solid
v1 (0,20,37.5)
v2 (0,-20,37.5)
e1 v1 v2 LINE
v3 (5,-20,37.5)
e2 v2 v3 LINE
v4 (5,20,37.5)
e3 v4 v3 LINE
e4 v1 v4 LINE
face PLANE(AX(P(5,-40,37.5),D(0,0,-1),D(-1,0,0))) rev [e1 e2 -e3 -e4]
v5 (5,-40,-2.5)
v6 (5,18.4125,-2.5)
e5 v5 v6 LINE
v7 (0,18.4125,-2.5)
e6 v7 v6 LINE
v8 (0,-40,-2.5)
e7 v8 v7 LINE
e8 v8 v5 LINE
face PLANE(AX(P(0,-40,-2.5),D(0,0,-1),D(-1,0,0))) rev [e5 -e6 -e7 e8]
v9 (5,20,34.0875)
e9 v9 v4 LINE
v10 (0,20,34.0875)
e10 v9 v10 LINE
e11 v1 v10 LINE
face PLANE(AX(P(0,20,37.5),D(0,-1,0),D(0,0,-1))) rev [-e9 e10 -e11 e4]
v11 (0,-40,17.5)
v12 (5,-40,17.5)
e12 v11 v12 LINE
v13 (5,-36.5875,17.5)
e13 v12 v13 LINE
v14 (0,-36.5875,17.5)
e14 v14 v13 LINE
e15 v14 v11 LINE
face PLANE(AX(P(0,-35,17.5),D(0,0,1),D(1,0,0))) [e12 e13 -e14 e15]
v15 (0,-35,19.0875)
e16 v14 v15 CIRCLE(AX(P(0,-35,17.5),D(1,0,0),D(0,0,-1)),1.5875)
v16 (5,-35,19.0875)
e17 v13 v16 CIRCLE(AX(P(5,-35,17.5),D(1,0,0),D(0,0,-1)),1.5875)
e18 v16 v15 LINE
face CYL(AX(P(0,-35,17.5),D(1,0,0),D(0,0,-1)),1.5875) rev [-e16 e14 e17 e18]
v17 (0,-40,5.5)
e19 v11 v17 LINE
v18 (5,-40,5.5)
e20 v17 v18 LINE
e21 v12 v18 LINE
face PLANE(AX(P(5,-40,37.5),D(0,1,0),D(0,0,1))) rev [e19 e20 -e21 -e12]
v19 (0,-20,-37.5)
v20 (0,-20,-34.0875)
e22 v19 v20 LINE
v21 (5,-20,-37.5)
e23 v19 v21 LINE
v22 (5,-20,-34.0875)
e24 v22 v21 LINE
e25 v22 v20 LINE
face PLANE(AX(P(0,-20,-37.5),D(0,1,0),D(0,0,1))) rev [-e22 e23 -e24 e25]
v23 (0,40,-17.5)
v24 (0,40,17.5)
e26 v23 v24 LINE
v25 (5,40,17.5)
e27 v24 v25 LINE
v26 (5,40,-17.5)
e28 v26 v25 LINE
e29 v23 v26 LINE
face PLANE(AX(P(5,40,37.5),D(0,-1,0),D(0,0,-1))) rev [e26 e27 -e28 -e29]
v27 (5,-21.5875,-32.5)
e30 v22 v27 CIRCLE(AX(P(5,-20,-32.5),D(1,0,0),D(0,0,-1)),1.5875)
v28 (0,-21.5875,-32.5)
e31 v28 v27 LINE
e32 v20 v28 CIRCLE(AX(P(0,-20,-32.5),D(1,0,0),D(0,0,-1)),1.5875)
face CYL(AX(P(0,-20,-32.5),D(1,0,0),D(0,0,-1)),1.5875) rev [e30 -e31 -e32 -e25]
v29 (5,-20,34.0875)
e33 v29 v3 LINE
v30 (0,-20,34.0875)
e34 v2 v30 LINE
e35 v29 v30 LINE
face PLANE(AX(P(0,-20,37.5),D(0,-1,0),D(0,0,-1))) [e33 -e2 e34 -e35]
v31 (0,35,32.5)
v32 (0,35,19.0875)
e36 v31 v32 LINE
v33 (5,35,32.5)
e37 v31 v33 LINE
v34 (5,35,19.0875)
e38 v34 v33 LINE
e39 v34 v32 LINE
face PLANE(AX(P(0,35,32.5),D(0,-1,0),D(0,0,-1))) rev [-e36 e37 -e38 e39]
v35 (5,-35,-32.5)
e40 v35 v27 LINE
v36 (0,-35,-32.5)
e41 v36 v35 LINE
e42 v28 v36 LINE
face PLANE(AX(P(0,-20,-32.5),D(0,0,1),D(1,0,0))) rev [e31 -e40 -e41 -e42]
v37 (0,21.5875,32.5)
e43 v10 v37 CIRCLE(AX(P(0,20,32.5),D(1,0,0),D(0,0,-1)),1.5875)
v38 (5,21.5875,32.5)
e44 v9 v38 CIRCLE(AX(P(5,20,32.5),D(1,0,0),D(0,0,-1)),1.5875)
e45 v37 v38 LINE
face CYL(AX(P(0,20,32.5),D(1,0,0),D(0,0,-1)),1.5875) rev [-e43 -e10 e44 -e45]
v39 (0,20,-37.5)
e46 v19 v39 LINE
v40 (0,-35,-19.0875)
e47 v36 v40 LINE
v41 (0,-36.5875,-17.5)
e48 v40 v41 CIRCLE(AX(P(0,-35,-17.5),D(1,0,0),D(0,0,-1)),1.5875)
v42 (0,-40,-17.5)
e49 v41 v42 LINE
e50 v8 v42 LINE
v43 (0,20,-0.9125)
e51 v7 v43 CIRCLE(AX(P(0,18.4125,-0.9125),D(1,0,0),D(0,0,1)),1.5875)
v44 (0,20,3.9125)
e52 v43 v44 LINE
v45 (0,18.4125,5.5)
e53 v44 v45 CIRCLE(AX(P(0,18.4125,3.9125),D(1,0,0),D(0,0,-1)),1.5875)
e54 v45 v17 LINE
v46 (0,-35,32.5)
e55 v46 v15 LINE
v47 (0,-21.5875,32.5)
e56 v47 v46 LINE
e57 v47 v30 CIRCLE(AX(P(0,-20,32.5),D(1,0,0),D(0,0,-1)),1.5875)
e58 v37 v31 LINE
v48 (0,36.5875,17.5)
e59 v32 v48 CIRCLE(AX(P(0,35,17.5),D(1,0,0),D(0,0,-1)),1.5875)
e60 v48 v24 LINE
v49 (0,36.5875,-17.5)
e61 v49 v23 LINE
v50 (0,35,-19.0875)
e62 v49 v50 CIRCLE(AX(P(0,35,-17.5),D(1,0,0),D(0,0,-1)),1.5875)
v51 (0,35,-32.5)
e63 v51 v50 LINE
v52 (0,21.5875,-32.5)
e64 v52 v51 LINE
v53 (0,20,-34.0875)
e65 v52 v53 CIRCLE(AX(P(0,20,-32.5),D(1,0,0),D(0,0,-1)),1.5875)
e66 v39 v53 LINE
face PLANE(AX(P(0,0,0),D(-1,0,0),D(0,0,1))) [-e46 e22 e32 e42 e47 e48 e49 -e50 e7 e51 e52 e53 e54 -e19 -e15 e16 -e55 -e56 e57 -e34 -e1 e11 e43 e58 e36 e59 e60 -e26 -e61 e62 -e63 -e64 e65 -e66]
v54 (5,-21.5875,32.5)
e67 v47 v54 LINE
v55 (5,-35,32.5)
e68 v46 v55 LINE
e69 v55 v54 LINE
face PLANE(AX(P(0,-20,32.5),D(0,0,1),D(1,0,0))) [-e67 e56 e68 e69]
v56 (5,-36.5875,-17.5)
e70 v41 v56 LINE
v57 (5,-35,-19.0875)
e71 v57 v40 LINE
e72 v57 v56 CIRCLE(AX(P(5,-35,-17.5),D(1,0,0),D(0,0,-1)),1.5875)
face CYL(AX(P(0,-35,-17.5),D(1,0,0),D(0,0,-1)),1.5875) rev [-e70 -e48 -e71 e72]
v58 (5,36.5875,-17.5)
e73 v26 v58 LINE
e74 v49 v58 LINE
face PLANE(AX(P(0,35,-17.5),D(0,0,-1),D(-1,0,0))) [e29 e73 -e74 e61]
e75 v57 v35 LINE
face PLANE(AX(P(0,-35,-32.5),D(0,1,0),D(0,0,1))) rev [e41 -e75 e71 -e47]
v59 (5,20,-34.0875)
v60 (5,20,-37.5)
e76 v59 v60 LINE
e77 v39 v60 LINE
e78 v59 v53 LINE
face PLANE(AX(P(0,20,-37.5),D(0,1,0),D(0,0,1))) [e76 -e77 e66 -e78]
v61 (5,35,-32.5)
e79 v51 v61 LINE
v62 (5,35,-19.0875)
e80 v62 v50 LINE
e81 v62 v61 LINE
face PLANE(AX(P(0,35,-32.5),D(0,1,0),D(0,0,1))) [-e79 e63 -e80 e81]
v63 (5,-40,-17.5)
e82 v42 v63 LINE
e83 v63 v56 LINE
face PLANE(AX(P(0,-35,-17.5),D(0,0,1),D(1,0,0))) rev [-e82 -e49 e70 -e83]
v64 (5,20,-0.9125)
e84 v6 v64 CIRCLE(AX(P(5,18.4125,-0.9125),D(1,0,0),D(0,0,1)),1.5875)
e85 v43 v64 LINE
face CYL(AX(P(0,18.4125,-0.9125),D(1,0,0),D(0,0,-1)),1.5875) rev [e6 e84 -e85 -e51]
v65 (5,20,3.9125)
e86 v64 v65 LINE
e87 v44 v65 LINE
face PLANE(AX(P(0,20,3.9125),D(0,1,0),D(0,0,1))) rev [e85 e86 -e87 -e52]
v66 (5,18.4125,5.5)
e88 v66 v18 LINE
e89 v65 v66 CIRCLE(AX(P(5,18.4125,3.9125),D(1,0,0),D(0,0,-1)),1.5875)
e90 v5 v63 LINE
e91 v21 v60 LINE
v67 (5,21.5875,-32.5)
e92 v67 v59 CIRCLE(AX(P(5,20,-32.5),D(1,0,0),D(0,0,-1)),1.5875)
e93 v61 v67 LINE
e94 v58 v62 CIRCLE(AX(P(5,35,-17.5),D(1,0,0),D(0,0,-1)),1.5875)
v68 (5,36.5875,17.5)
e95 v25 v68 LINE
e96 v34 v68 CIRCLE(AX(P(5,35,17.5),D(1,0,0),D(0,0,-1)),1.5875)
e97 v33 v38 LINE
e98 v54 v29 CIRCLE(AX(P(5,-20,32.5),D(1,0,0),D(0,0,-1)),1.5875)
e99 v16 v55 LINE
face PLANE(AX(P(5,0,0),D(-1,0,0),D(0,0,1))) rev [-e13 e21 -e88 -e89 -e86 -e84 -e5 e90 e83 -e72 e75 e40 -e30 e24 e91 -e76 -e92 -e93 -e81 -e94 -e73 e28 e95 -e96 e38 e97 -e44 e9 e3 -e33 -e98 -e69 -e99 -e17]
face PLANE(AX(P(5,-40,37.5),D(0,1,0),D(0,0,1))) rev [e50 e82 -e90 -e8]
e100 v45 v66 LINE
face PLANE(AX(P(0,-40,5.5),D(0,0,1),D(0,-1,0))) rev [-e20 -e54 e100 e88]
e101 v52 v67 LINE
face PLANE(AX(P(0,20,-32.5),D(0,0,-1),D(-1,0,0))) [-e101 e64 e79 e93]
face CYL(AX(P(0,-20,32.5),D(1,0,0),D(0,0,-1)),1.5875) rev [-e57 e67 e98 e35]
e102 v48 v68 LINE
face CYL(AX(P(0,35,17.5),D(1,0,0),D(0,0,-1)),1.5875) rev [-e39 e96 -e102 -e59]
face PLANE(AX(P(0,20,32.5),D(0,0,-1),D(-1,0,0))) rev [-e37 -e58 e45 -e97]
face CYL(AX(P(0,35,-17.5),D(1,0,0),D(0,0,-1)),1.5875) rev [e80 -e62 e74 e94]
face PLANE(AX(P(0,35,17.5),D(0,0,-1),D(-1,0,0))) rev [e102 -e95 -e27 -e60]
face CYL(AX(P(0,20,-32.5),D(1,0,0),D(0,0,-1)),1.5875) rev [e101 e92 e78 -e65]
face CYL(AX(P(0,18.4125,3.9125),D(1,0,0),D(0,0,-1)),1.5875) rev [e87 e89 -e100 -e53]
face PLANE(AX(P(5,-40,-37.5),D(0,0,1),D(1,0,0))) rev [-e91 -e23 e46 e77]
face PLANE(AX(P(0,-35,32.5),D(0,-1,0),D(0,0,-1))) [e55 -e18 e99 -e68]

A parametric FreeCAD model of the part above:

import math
import FreeCAD as App
import Part
import Sketcher

V = App.Vector


def add_polygon(sketch, points):
    """Adds a closed chain of lines whose ends are joined by coincident constraints."""
    first, n = sketch.GeometryCount, len(points)
    for a, b in zip(points, points[1:] + points[:1]):
        sketch.addGeometry(Part.LineSegment(App.Vector(*a, 0), App.Vector(*b, 0)), False)
    for i in range(n):
        sketch.addConstraint(Sketcher.Constraint("Coincident", first + i, 2, first + (i + 1) % n, 1))

doc = App.newDocument("Part")
body = doc.addObject("PartDesign::Body", "Body")

sketch1 = body.newObject("Sketcher::SketchObject", "Sketch")
sketch1.AttachmentSupport = (doc.getObject("YZ_Plane"), [""])
sketch1.MapMode = "FlatFace"
add_polygon(sketch1, [(40, 38), (-40, 38), (-40, -38), (40, -38)])
sketch1.addConstraint([
    Sketcher.Constraint("Horizontal", 0),
    Sketcher.Constraint("Vertical", 1),
    Sketcher.Constraint("Horizontal", 2),
    Sketcher.Constraint("Vertical", 3),
    Sketcher.Constraint("Symmetric", 0, 2, 2, 2, -1, 1),
    Sketcher.Constraint("DistanceX", 0, 2, 0, 1, 80.0),
    Sketcher.Constraint("DistanceY", 1, 2, 1, 1, 75.0),
])
pad1 = body.newObject("PartDesign::Pad", "Pad")
pad1.Profile = sketch1
pad1.Length = 5

sketch2 = body.newObject("Sketcher::SketchObject", "Sketch001")
sketch2.AttachmentSupport = (doc.getObject("YZ_Plane"), [""])
sketch2.MapMode = "FlatFace"
sketch2.AttachmentOffset = App.Placement(V(0, 0, -1), App.Rotation())
add_polygon(sketch2, [(20, 38), (20, 32), (35, 32), (35, 18), (40, 18), (40, 38)])
sketch2.addConstraint([
    Sketcher.Constraint("Vertical", 0),
    Sketcher.Constraint("Horizontal", 1),
    Sketcher.Constraint("Vertical", 2),
    Sketcher.Constraint("Horizontal", 3),
    Sketcher.Constraint("Vertical", 4),
    Sketcher.Constraint("Horizontal", 5),
    Sketcher.Constraint("Equal", 3, 0),
    Sketcher.Constraint("Equal", 1, 2),
    Sketcher.Constraint("DistanceX", 1, 1, 1, 2, 15.0),
    Sketcher.Constraint("DistanceX", 3, 1, 3, 2, 5.0),
    Sketcher.Constraint("DistanceX", -1, 1, 0, 2, 20.0),
    Sketcher.Constraint("DistanceY", -1, 1, 0, 2, 32.5),
])
pocket1 = body.newObject("PartDesign::Pocket", "Pocket")
pocket1.Profile = sketch2
pocket1.Length = 7
pocket1.Reversed = True
doc.recompute()

mirrored = body.newObject("PartDesign::Mirrored", "Mirrored")
mirrored.Originals = [pocket1]
mirrored.MirrorPlane = (doc.getObject("XY_Plane"), [""])
body.Tip = mirrored
doc.recompute()

mirrored2 = body.newObject("PartDesign::Mirrored", "Mirrored001")
mirrored2.Originals = [pocket1]
mirrored2.MirrorPlane = (doc.getObject("XZ_Plane"), [""])
body.Tip = mirrored2

sketch3 = body.newObject("Sketcher::SketchObject", "Sketch002")
sketch3.AttachmentSupport = (doc.getObject("YZ_Plane"), [""])
sketch3.MapMode = "FlatFace"
sketch3.AttachmentOffset = App.Placement(V(0, 0, -1), App.Rotation())
add_polygon(sketch3, [(-20, -38), (-20, -32), (-35, -32), (-35, -18), (-40, -18), (-40, -38)])
sketch3.addConstraint([
    Sketcher.Constraint("Vertical", 0),
    Sketcher.Constraint("Horizontal", 1),
    Sketcher.Constraint("Vertical", 2),
    Sketcher.Constraint("Horizontal", 3),
    Sketcher.Constraint("Vertical", 4),
    Sketcher.Constraint("Horizontal", 5),
    Sketcher.Constraint("Equal", 3, 0),
    Sketcher.Constraint("Equal", 1, 2),
    Sketcher.Constraint("DistanceX", 1, 2, 1, 1, 15.0),
    Sketcher.Constraint("DistanceX", 3, 2, 3, 1, 5.0),
    Sketcher.Constraint("DistanceX", 0, 2, -1, 1, 20.0),
    Sketcher.Constraint("DistanceY", 0, 2, -1, 1, 32.5),
])
pocket2 = body.newObject("PartDesign::Pocket", "Pocket001")
pocket2.Profile = sketch3
pocket2.Length = 7
pocket2.Reversed = True

sketch4 = body.newObject("Sketcher::SketchObject", "Sketch003")
sketch4.AttachmentSupport = (doc.getObject("YZ_Plane"), [""])
sketch4.MapMode = "FlatFace"
sketch4.AttachmentOffset = App.Placement(V(0, 0, 5), App.Rotation())
sketch4.addGeometry([
    Part.LineSegment(V(18.4, 5.5, 0), V(-40, 5.5, 0)),
    Part.LineSegment(V(-40, 5.5, 0), V(-40, -2.5, 0)),
    Part.LineSegment(V(-40, -2.5, 0), V(18.4, -2.5, 0)),
    Part.ArcOfCircle(Part.Circle(V(18.4, -0.9, 0), V(0, 0, 1), 1.6), math.radians(-90), math.radians(0)),
    Part.LineSegment(V(20, -0.9, 0), V(20, 3.9, 0)),
    Part.ArcOfCircle(Part.Circle(V(18.4, 3.9, 0), V(0, 0, 1), 1.6), math.radians(0), math.radians(90)),
], False)
sketch4.addConstraint([
    Sketcher.Constraint("Coincident", 0, 2, 1, 1),
    Sketcher.Constraint("Coincident", 1, 2, 2, 1),
    Sketcher.Constraint("Tangent", 2, 2, 3, 1),
    Sketcher.Constraint("Tangent", 3, 2, 4, 1),
    Sketcher.Constraint("Tangent", 4, 2, 5, 1),
    Sketcher.Constraint("Tangent", 5, 2, 0, 1),
    Sketcher.Constraint("Horizontal", 0),
    Sketcher.Constraint("Vertical", 1),
    Sketcher.Constraint("Horizontal", 2),
    Sketcher.Constraint("Vertical", 4),
    Sketcher.Constraint("Equal", 3, 5),
    Sketcher.Constraint("DistanceY", 1, 2, 1, 1, 8.0),
    Sketcher.Constraint("DistanceX", 0, 2, -1, 1, 40.0),
    Sketcher.Constraint("DistanceX", -1, 1, 3, 2, 20.0),
    Sketcher.Constraint("DistanceY", -1, 1, 0, 2, 5.5),
    Sketcher.Constraint("Radius", 3, 1.5875),
])
pocket3 = body.newObject("PartDesign::Pocket", "Pocket002")
pocket3.Profile = sketch4
pocket3.Type = "ThroughAll"
pocket3.Midplane = True

sketch5 = body.newObject("Sketcher::SketchObject", "Sketch004")
sketch5.AttachmentSupport = (doc.getObject("YZ_Plane"), [""])
sketch5.MapMode = "FlatFace"
sketch5.AttachmentOffset = App.Placement(V(0, 0, 5), App.Rotation())
sketch5.addGeometry([
    Part.Circle(V(35, 17.5, 0), V(0, 0, 1), 1.6),
    Part.Circle(V(20, 32.5, 0), V(0, 0, 1), 1.6),
    Part.Circle(V(35, -17.5, 0), V(0, 0, 1), 1.6),
    Part.Circle(V(20, -32.5, 0), V(0, 0, 1), 1.6),
    Part.Circle(V(-20, -32.5, 0), V(0, 0, 1), 1.6),
    Part.Circle(V(-35, -17.5, 0), V(0, 0, 1), 1.6),
    Part.Circle(V(-35, 17.5, 0), V(0, 0, 1), 1.6),
    Part.Circle(V(-20, 32.5, 0), V(0, 0, 1), 1.6),
], False)
sketch5.addConstraint([
    Sketcher.Constraint("Equal", 0, 1),
    Sketcher.Constraint("Equal", 1, 2),
    Sketcher.Constraint("Equal", 2, 3),
    Sketcher.Constraint("Equal", 3, 4),
    Sketcher.Constraint("Equal", 4, 5),
    Sketcher.Constraint("Equal", 5, 6),
    Sketcher.Constraint("Equal", 6, 7),
    Sketcher.Constraint("Symmetric", 1, 3, 4, 3, -1, 1),
    Sketcher.Constraint("Symmetric", 0, 3, 5, 3, -1, 1),
    Sketcher.Constraint("Symmetric", 2, 3, 6, 3, -1, 1),
    Sketcher.Constraint("Symmetric", 3, 3, 7, 3, -1, 1),
    Sketcher.Constraint("Symmetric", 3, 3, 4, 3, -2),
    Sketcher.Constraint("Symmetric", 2, 3, 5, 3, -2),
    Sketcher.Constraint("Diameter", 0, 3.175),
    Sketcher.Constraint("DistanceX", -1, 1, 0, 3, 35.0),
    Sketcher.Constraint("DistanceX", -1, 1, 1, 3, 20.0),
    Sketcher.Constraint("DistanceY", 0, 3, 1, 3, 15.0),
    Sketcher.Constraint("DistanceY", 2, 3, 0, 3, 35.0),
])
pocket4 = body.newObject("PartDesign::Pocket", "Pocket003")
pocket4.Profile = sketch5
pocket4.Type = "ThroughAll"

doc.recompute()
